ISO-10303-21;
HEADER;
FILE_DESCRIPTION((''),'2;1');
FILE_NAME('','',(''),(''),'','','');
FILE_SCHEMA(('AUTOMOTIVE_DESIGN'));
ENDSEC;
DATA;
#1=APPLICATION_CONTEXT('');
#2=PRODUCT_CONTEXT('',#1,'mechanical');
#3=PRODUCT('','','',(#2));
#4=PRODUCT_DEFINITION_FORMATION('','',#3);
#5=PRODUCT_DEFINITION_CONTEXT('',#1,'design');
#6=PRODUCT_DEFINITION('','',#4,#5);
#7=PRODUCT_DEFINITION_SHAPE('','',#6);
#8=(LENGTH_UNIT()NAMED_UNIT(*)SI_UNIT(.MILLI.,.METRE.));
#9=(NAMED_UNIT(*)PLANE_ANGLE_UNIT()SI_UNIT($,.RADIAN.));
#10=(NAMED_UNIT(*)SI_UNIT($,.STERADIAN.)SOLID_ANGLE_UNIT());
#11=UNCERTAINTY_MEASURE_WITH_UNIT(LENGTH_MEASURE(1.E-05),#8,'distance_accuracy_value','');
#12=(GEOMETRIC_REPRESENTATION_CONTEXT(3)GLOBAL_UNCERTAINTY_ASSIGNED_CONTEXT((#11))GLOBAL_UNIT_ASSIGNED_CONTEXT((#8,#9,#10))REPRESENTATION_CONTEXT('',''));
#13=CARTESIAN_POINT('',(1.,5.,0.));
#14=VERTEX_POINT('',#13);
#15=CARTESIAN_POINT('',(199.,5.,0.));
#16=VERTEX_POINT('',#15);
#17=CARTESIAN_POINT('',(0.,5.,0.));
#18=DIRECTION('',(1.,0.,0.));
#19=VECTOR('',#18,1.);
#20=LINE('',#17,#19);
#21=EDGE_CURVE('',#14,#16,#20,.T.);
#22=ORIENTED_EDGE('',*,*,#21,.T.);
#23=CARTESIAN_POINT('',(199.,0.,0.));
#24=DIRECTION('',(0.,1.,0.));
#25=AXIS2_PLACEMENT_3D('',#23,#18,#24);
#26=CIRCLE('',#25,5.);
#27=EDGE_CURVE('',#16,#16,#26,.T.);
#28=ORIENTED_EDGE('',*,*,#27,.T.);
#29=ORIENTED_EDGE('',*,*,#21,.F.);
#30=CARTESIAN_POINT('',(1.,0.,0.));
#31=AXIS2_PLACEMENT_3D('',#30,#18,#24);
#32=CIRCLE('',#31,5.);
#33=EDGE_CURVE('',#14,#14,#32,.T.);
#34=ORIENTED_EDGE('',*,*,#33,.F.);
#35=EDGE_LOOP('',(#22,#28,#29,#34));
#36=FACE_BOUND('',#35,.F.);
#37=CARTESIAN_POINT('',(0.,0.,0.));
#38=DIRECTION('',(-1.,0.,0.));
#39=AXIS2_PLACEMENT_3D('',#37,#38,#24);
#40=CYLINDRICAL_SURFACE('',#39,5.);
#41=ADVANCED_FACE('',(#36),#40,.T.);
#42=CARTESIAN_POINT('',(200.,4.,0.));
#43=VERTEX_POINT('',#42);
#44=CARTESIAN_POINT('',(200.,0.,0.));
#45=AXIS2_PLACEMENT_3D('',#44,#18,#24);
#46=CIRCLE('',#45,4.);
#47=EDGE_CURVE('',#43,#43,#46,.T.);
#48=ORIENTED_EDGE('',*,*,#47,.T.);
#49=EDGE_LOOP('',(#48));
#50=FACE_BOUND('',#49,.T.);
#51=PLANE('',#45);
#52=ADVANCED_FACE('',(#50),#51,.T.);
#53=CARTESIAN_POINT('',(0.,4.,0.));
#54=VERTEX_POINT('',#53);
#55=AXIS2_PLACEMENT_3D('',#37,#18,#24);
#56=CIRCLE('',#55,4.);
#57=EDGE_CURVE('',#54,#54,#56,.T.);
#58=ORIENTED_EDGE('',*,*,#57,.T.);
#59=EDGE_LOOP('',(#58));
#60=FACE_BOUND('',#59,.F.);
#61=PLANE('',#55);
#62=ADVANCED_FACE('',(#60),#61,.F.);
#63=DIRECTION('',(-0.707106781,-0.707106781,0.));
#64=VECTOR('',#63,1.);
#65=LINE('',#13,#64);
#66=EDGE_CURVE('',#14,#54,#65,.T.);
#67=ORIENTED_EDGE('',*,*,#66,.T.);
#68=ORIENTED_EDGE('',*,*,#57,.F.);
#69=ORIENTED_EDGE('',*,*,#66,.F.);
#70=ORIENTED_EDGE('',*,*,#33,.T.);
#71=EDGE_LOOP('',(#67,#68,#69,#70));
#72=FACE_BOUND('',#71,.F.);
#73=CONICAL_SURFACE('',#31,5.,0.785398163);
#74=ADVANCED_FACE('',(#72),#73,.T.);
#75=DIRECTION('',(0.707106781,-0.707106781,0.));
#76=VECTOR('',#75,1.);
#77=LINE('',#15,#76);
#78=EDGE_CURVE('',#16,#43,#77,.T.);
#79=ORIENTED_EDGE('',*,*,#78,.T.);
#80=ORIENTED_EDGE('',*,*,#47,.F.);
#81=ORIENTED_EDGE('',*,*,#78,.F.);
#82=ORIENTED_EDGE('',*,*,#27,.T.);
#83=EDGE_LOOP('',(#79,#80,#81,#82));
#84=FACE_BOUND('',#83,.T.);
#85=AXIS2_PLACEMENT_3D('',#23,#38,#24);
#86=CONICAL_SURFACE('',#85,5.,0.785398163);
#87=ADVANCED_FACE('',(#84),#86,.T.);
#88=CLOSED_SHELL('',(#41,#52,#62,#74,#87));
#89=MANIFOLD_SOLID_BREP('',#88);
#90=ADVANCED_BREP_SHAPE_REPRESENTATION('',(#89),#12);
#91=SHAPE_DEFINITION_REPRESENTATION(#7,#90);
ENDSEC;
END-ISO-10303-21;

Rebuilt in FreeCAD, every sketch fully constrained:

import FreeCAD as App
import Part
import Sketcher

V = App.Vector
Q = App.Units.Quantity


def edges_at(feature, points):
    """Names of the edges that pass closest to the given points."""
    edges = feature.Shape.Edges
    near = lambda p: min(range(len(edges)), key=lambda i: edges[i].distToShape(Part.Vertex(*p))[0])
    return sorted({f"Edge{near(p) + 1}" for p in points})

doc = App.newDocument("Part")
body = doc.addObject("PartDesign::Body", "Body")

sketch1 = doc.addObject("Sketcher::SketchObject", "Sketch")
body.addObject(sketch1)
sketch1.AttachmentSupport = (doc.YZ_Plane, [""])
sketch1.MapMode = "FlatFace"
sketch1.addGeometry(Part.Circle(V(0, 0, 0), V(0, 0, 1), 5), False)
sketch1.addConstraint([
    Sketcher.Constraint("Coincident", 0, 3, -1, 1),
    Sketcher.Constraint("Diameter", 0, Q("10 mm")),
])
pad1 = doc.addObject("PartDesign::Pad", "Pad")
body.addObject(pad1)
pad1.Profile = sketch1
pad1.Length = 200
doc.recompute()

chamfer = doc.addObject("PartDesign::Chamfer", "Chamfer")
body.addObject(chamfer)
chamfer.Base = (pad1, edges_at(pad1, [(200, -5, 0), (0, -5, 0)]))
chamfer.ChamferType = "Two distances"
chamfer.Size = 1
chamfer.Size2 = 1

doc.recompute()
